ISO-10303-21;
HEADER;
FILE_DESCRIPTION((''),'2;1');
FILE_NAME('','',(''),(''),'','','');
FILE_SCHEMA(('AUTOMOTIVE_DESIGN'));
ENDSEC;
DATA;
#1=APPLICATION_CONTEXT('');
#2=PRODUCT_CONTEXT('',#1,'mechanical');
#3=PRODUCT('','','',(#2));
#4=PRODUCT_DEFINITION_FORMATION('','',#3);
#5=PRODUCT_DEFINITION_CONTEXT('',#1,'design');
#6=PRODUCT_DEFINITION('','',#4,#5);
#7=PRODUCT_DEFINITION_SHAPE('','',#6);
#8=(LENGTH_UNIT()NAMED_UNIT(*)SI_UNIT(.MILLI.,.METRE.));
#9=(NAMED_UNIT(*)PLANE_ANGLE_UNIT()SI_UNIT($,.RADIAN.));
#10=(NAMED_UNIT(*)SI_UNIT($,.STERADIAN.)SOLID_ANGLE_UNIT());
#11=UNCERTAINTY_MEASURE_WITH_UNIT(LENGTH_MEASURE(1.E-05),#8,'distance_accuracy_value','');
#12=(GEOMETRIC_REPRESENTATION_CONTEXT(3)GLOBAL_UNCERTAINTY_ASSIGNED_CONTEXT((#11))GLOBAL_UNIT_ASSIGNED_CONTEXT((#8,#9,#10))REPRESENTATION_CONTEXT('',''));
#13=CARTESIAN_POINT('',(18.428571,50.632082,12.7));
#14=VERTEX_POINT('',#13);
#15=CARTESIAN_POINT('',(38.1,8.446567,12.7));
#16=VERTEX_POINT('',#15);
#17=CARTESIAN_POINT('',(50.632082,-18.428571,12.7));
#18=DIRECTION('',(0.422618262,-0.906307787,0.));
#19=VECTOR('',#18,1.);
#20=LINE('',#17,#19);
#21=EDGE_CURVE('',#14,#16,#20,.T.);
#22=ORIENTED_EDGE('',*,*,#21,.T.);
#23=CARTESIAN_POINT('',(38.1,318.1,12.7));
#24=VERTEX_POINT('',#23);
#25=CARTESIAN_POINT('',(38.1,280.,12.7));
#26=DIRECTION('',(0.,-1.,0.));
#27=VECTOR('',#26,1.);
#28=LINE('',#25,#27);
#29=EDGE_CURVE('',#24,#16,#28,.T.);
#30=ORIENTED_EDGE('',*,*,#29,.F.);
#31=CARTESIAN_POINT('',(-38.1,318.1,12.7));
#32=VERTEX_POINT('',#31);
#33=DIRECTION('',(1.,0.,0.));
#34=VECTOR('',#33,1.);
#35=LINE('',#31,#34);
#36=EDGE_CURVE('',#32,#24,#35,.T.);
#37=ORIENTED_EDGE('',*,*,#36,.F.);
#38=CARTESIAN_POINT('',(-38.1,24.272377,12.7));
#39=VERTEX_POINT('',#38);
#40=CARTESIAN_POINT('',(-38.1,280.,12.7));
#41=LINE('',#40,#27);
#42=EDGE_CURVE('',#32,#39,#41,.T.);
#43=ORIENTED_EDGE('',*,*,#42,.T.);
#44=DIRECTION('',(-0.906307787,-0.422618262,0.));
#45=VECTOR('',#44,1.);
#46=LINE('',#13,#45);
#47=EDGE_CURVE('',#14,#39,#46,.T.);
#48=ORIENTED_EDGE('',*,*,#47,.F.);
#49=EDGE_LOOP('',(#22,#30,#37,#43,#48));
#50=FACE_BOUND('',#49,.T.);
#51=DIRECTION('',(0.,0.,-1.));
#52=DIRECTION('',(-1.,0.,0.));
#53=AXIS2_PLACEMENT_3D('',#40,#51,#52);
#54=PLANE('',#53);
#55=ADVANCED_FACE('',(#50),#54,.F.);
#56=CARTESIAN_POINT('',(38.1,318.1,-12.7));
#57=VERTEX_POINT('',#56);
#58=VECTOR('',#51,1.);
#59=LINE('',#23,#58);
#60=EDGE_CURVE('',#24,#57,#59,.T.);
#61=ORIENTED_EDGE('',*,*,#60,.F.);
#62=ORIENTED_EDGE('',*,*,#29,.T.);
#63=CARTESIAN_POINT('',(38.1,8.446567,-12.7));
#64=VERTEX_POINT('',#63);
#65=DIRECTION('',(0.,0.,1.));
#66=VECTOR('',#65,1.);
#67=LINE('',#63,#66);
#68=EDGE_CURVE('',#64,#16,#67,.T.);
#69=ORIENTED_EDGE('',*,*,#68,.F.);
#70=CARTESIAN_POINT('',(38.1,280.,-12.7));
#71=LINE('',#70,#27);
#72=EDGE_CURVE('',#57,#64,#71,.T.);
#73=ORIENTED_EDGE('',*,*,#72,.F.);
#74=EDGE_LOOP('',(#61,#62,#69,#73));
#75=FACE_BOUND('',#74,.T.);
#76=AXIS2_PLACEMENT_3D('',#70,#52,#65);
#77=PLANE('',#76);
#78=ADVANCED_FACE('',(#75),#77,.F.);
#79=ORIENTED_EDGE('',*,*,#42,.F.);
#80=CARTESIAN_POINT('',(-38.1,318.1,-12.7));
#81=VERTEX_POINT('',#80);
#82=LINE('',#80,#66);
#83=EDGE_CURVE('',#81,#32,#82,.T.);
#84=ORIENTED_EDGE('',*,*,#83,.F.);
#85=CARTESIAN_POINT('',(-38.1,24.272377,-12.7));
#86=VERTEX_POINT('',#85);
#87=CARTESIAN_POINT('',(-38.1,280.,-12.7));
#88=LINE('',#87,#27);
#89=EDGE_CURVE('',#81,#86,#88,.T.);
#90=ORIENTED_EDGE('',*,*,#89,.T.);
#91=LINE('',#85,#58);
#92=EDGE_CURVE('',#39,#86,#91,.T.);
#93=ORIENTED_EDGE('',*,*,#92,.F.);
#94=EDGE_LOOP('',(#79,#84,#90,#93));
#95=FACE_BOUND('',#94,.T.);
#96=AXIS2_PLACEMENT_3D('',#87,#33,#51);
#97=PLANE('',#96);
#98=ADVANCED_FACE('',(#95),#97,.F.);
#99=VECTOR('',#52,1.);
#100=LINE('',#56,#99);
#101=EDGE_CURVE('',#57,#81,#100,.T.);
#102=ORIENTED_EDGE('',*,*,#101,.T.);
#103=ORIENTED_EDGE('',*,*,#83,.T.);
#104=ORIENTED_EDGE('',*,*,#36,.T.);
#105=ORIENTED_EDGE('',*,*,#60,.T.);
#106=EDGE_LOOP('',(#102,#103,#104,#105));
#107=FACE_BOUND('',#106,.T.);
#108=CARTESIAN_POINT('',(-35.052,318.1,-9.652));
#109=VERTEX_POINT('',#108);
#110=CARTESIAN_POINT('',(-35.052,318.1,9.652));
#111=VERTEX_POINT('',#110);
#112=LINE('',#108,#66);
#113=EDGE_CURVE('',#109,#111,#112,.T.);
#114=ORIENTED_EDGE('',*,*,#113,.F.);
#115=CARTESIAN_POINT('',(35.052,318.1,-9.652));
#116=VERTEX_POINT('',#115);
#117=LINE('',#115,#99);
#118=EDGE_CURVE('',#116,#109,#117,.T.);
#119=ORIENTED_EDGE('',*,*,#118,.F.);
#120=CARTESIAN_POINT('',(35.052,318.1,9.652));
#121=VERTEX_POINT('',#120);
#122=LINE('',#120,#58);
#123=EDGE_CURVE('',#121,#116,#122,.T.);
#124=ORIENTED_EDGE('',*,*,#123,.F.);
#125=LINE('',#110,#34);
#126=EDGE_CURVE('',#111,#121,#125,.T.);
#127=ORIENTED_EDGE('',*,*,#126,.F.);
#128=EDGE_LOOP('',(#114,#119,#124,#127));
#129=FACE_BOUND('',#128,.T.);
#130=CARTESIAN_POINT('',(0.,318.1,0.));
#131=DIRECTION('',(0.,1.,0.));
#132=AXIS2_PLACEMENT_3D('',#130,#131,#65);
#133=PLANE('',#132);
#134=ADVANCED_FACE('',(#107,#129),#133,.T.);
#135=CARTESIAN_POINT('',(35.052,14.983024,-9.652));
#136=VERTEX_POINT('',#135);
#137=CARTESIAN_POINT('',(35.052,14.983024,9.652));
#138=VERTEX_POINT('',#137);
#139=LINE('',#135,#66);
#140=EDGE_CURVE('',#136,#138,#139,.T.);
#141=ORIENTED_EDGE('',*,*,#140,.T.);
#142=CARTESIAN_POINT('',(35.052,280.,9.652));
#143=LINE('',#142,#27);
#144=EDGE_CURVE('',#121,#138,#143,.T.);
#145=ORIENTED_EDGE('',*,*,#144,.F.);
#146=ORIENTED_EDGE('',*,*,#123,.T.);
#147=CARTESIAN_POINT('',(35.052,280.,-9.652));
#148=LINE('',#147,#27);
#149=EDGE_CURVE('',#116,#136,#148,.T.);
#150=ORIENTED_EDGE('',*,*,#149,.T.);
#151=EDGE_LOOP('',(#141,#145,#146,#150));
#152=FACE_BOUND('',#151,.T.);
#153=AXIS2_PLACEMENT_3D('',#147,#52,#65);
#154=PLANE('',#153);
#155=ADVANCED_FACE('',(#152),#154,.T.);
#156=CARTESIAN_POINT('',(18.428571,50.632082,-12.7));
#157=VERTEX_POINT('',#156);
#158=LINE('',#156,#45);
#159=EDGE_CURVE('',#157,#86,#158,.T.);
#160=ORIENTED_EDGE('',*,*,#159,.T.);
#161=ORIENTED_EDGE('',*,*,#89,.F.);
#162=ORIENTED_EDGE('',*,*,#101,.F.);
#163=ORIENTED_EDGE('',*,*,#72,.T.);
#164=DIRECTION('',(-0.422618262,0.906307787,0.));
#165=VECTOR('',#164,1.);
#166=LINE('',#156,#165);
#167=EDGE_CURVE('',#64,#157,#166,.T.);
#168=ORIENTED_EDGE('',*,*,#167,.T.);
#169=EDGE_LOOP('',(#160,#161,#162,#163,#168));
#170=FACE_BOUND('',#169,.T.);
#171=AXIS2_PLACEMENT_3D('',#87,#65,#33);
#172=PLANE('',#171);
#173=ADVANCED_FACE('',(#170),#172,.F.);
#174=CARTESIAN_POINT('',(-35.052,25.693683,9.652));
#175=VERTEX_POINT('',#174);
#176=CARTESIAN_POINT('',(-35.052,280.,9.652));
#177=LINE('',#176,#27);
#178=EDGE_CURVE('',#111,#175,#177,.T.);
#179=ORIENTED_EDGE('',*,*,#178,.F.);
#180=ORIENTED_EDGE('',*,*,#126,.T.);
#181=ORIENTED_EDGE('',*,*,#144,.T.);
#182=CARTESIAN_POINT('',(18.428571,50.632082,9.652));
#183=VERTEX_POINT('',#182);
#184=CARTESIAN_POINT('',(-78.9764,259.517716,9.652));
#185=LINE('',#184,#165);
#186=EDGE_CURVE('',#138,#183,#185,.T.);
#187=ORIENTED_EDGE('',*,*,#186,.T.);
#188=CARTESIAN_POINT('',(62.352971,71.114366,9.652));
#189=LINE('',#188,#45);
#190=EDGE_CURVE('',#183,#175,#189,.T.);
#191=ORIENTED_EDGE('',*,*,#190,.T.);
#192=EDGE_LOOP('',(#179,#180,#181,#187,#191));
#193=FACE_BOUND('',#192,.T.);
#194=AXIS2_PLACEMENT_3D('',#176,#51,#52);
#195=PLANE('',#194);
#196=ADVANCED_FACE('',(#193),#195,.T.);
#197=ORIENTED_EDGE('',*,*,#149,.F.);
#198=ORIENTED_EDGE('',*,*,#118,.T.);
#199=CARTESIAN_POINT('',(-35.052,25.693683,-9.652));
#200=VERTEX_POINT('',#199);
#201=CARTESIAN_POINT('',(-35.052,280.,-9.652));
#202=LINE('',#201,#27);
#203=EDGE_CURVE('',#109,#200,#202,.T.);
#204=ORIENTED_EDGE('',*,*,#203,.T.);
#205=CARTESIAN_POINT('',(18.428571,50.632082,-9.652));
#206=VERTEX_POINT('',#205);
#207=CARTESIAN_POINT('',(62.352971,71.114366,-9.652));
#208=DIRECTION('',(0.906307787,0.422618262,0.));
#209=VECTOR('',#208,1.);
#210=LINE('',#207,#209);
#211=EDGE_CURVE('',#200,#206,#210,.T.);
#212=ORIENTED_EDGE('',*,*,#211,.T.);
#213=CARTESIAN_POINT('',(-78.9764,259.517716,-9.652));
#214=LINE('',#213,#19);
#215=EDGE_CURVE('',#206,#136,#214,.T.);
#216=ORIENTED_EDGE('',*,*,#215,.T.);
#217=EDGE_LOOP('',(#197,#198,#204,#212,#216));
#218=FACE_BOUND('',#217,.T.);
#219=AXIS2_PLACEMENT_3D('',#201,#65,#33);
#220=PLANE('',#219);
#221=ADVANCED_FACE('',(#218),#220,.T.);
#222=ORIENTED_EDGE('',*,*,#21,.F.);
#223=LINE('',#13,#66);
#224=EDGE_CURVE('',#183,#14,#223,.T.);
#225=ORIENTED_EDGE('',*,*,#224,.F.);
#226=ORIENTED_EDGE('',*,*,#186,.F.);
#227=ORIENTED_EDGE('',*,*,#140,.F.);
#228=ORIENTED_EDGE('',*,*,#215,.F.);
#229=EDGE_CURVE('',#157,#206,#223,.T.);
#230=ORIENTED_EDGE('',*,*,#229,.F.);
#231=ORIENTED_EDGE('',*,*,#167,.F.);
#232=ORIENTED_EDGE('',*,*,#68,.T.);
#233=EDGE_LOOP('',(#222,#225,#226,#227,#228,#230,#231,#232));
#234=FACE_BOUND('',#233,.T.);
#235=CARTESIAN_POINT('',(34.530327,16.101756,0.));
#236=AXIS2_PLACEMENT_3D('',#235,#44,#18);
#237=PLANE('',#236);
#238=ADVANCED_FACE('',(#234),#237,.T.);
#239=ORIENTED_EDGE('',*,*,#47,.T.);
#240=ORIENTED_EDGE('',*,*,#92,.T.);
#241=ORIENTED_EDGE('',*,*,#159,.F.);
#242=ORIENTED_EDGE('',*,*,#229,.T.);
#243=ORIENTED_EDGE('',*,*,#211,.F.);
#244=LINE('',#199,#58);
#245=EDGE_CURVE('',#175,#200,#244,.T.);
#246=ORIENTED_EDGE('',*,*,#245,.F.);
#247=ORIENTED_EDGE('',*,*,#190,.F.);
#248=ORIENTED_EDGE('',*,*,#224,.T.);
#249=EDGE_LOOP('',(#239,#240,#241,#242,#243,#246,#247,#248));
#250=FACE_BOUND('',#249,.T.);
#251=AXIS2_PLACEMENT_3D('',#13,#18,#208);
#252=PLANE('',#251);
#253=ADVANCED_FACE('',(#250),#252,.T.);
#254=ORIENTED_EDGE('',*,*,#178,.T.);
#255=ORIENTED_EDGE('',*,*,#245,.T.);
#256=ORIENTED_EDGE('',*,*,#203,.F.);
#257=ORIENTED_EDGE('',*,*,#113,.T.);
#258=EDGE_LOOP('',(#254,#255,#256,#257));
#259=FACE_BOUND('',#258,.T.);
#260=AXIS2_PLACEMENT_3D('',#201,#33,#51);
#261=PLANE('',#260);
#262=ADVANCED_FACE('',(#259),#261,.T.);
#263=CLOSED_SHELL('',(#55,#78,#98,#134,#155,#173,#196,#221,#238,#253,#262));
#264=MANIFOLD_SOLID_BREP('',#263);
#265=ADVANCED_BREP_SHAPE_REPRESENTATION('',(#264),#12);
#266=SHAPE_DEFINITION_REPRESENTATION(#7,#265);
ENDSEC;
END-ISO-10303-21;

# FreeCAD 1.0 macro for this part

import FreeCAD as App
import Part
import Sketcher

V = App.Vector
Q = App.Units.Quantity

doc = App.newDocument("Part")
body = doc.addObject("PartDesign::Body", "Body")

# Sketch on XZ plane
sketch1 = body.newObject("Sketcher::SketchObject", "Sketch")
sketch1.AttachmentSupport = (doc.getObject("XZ_Plane"), [""])
sketch1.MapMode = "FlatFace"
sketch1.addGeometry([
    Part.LineSegment(V(-38, -13, 0), V(-38, 13, 0)),  # 0
    Part.LineSegment(V(-38, 13, 0), V(38, 13, 0)),  # 1
    Part.LineSegment(V(38, 13, 0), V(38, -13, 0)),  # 2
    Part.LineSegment(V(38, -13, 0), V(-38, -13, 0)),  # 3
    Part.LineSegment(V(35, 10, 0), V(-35, 10, 0)),  # 4
    Part.LineSegment(V(-35, 10, 0), V(-35, -10, 0)),  # 5
    Part.LineSegment(V(-35, -10, 0), V(35, -10, 0)),  # 6
    Part.LineSegment(V(35, -10, 0), V(35, 10, 0)),  # 7
], False)
sketch1.addConstraint([
    Sketcher.Constraint("Coincident", 0, 2, 1, 1),
    Sketcher.Constraint("Coincident", 1, 2, 2, 1),
    Sketcher.Constraint("Coincident", 2, 2, 3, 1),
    Sketcher.Constraint("Coincident", 3, 2, 0, 1),
    Sketcher.Constraint("Coincident", 4, 2, 5, 1),
    Sketcher.Constraint("Coincident", 5, 2, 6, 1),
    Sketcher.Constraint("Coincident", 6, 2, 7, 1),
    Sketcher.Constraint("Coincident", 7, 2, 4, 1),
    Sketcher.Constraint("Vertical", 0),
    Sketcher.Constraint("Horizontal", 1),
    Sketcher.Constraint("Vertical", 2),
    Sketcher.Constraint("Horizontal", 3),
    Sketcher.Constraint("Horizontal", 4),
    Sketcher.Constraint("Vertical", 5),
    Sketcher.Constraint("Horizontal", 6),
    Sketcher.Constraint("Vertical", 7),
    Sketcher.Constraint("Symmetric", 0, 2, 2, 2, -1, 1),
    Sketcher.Constraint("Symmetric", 4, 2, 6, 2, -1, 1),
    Sketcher.Constraint("DistanceX", 1, 1, 1, 2, Q("3 in")),
    Sketcher.Constraint("DistanceY", 0, 1, 0, 2, Q("1 in")),
    Sketcher.Constraint("DistanceX", 4, 2, 4, 1, Q("2.76 in")),
    Sketcher.Constraint("DistanceY", 5, 2, 5, 1, Q("0.76 in")),
])
pad1 = body.newObject("PartDesign::Pad", "Pad")
pad1.Profile = sketch1
pad1.Length = 280
pad1.Reversed = True

# Sketch on XZ plane
sketch2 = body.newObject("Sketcher::SketchObject", "Sketch001")
sketch2.AttachmentSupport = (doc.getObject("XZ_Plane"), [""])
sketch2.MapMode = "FlatFace"
sketch2.AttachmentOffset = App.Placement(V(0, 0, -280), App.Rotation())
sketch2.addGeometry([
    Part.LineSegment(V(-38, -13, 0), V(-38, 13, 0)),  # 0
    Part.LineSegment(V(-38, 13, 0), V(38, 13, 0)),  # 1
    Part.LineSegment(V(38, 13, 0), V(38, -13, 0)),  # 2
    Part.LineSegment(V(38, -13, 0), V(-38, -13, 0)),  # 3
    Part.LineSegment(V(35, 10, 0), V(-35, 10, 0)),  # 4
    Part.LineSegment(V(-35, 10, 0), V(-35, -10, 0)),  # 5
    Part.LineSegment(V(-35, -10, 0), V(35, -10, 0)),  # 6
    Part.LineSegment(V(35, -10, 0), V(35, 10, 0)),  # 7
], False)
sketch2.addConstraint([
    Sketcher.Constraint("Coincident", 0, 2, 1, 1),
    Sketcher.Constraint("Coincident", 1, 2, 2, 1),
    Sketcher.Constraint("Coincident", 2, 2, 3, 1),
    Sketcher.Constraint("Coincident", 3, 2, 0, 1),
    Sketcher.Constraint("Coincident", 4, 2, 5, 1),
    Sketcher.Constraint("Coincident", 5, 2, 6, 1),
    Sketcher.Constraint("Coincident", 6, 2, 7, 1),
    Sketcher.Constraint("Coincident", 7, 2, 4, 1),
    Sketcher.Constraint("Vertical", 0),
    Sketcher.Constraint("Horizontal", 1),
    Sketcher.Constraint("Vertical", 2),
    Sketcher.Constraint("Horizontal", 3),
    Sketcher.Constraint("Horizontal", 4),
    Sketcher.Constraint("Vertical", 5),
    Sketcher.Constraint("Horizontal", 6),
    Sketcher.Constraint("Vertical", 7),
    Sketcher.Constraint("Symmetric", 0, 2, 2, 2, -1, 1),
    Sketcher.Constraint("Symmetric", 4, 2, 6, 2, -1, 1),
    Sketcher.Constraint("DistanceX", 1, 1, 1, 2, Q("3 in")),
    Sketcher.Constraint("DistanceY", 0, 1, 0, 2, Q("1 in")),
    Sketcher.Constraint("DistanceX", 4, 2, 4, 1, Q("2.76 in")),
    Sketcher.Constraint("DistanceY", 5, 2, 5, 1, Q("0.76 in")),
])
pad2 = body.newObject("PartDesign::Pad", "Pad001")
pad2.Profile = sketch2
pad2.Length = Q("1.5 in")
pad2.Reversed = True

# Sketch on an angled plane
sketch3 = body.newObject("Sketcher::SketchObject", "Sketch002")
sketch3.Placement = App.Placement(V(-31.295104, -14.593147, 0), App.Rotation(V(0, 0, -1), V(-0.422618262, 0.906307787, 0), V(0.906307787, 0.422618262, 0), "ZXY"))
sketch3.addGeometry([
    Part.LineSegment(V(-13, 38, 0), V(-13, -38, 0)),
    Part.LineSegment(V(-13, -38, 0), V(13, -38, 0)),
    Part.LineSegment(V(13, -38, 0), V(13, 38, 0)),
    Part.LineSegment(V(13, 38, 0), V(-13, 38, 0)),
], False)
sketch3.addConstraint([
    Sketcher.Constraint("Coincident", 0, 2, 1, 1),
    Sketcher.Constraint("Coincident", 1, 2, 2, 1),
    Sketcher.Constraint("Coincident", 2, 2, 3, 1),
    Sketcher.Constraint("Coincident", 3, 2, 0, 1),
    Sketcher.Constraint("Vertical", 0),
    Sketcher.Constraint("Horizontal", 1),
    Sketcher.Constraint("Vertical", 2),
    Sketcher.Constraint("Horizontal", 3),
    Sketcher.Constraint("Symmetric", 0, 2, 2, 2, -1, 1),
    Sketcher.Constraint("DistanceX", 1, 1, 1, 2, Q("1 in")),
    Sketcher.Constraint("DistanceY", 0, 2, 0, 1, Q("3 in")),
])
pocket1 = body.newObject("PartDesign::Pocket", "Pocket")
pocket1.Profile = sketch3
pocket1.Length = 72.630327
pocket1.Reversed = True

doc.recompute()
